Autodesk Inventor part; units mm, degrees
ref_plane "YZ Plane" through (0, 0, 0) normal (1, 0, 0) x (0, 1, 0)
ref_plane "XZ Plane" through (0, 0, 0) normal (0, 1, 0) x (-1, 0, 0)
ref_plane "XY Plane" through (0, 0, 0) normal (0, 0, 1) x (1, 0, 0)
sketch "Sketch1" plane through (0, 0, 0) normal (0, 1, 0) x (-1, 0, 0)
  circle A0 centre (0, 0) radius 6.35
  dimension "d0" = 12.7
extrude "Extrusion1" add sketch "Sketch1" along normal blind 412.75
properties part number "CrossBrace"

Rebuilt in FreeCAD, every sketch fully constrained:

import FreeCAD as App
import Part
import Sketcher
Q = App.Units.Quantity

doc = App.newDocument("Part")
body = doc.addObject("PartDesign::Body", "Body")

# Sketch on XZ plane
sketch1 = body.newObject("Sketcher::SketchObject", "Sketch")
sketch1.AttachmentSupport = (doc.getObject("XZ_Plane"), [""])
sketch1.MapMode = "FlatFace"
sketch1.addGeometry(Part.Circle(App.Vector(0, 0, 0), App.Vector(0, 0, 1), 6.35), False)
sketch1.addConstraint(Sketcher.Constraint("Coincident", 0, 3, -1, 1))
sketch1.addConstraint(Sketcher.Constraint("Diameter", 0, Q("0.5 in")))
pad1 = body.newObject("PartDesign::Pad", "Pad")
pad1.Profile = sketch1
pad1.Length = Q("16.25 in")
pad1.Reversed = True

doc.recompute()
